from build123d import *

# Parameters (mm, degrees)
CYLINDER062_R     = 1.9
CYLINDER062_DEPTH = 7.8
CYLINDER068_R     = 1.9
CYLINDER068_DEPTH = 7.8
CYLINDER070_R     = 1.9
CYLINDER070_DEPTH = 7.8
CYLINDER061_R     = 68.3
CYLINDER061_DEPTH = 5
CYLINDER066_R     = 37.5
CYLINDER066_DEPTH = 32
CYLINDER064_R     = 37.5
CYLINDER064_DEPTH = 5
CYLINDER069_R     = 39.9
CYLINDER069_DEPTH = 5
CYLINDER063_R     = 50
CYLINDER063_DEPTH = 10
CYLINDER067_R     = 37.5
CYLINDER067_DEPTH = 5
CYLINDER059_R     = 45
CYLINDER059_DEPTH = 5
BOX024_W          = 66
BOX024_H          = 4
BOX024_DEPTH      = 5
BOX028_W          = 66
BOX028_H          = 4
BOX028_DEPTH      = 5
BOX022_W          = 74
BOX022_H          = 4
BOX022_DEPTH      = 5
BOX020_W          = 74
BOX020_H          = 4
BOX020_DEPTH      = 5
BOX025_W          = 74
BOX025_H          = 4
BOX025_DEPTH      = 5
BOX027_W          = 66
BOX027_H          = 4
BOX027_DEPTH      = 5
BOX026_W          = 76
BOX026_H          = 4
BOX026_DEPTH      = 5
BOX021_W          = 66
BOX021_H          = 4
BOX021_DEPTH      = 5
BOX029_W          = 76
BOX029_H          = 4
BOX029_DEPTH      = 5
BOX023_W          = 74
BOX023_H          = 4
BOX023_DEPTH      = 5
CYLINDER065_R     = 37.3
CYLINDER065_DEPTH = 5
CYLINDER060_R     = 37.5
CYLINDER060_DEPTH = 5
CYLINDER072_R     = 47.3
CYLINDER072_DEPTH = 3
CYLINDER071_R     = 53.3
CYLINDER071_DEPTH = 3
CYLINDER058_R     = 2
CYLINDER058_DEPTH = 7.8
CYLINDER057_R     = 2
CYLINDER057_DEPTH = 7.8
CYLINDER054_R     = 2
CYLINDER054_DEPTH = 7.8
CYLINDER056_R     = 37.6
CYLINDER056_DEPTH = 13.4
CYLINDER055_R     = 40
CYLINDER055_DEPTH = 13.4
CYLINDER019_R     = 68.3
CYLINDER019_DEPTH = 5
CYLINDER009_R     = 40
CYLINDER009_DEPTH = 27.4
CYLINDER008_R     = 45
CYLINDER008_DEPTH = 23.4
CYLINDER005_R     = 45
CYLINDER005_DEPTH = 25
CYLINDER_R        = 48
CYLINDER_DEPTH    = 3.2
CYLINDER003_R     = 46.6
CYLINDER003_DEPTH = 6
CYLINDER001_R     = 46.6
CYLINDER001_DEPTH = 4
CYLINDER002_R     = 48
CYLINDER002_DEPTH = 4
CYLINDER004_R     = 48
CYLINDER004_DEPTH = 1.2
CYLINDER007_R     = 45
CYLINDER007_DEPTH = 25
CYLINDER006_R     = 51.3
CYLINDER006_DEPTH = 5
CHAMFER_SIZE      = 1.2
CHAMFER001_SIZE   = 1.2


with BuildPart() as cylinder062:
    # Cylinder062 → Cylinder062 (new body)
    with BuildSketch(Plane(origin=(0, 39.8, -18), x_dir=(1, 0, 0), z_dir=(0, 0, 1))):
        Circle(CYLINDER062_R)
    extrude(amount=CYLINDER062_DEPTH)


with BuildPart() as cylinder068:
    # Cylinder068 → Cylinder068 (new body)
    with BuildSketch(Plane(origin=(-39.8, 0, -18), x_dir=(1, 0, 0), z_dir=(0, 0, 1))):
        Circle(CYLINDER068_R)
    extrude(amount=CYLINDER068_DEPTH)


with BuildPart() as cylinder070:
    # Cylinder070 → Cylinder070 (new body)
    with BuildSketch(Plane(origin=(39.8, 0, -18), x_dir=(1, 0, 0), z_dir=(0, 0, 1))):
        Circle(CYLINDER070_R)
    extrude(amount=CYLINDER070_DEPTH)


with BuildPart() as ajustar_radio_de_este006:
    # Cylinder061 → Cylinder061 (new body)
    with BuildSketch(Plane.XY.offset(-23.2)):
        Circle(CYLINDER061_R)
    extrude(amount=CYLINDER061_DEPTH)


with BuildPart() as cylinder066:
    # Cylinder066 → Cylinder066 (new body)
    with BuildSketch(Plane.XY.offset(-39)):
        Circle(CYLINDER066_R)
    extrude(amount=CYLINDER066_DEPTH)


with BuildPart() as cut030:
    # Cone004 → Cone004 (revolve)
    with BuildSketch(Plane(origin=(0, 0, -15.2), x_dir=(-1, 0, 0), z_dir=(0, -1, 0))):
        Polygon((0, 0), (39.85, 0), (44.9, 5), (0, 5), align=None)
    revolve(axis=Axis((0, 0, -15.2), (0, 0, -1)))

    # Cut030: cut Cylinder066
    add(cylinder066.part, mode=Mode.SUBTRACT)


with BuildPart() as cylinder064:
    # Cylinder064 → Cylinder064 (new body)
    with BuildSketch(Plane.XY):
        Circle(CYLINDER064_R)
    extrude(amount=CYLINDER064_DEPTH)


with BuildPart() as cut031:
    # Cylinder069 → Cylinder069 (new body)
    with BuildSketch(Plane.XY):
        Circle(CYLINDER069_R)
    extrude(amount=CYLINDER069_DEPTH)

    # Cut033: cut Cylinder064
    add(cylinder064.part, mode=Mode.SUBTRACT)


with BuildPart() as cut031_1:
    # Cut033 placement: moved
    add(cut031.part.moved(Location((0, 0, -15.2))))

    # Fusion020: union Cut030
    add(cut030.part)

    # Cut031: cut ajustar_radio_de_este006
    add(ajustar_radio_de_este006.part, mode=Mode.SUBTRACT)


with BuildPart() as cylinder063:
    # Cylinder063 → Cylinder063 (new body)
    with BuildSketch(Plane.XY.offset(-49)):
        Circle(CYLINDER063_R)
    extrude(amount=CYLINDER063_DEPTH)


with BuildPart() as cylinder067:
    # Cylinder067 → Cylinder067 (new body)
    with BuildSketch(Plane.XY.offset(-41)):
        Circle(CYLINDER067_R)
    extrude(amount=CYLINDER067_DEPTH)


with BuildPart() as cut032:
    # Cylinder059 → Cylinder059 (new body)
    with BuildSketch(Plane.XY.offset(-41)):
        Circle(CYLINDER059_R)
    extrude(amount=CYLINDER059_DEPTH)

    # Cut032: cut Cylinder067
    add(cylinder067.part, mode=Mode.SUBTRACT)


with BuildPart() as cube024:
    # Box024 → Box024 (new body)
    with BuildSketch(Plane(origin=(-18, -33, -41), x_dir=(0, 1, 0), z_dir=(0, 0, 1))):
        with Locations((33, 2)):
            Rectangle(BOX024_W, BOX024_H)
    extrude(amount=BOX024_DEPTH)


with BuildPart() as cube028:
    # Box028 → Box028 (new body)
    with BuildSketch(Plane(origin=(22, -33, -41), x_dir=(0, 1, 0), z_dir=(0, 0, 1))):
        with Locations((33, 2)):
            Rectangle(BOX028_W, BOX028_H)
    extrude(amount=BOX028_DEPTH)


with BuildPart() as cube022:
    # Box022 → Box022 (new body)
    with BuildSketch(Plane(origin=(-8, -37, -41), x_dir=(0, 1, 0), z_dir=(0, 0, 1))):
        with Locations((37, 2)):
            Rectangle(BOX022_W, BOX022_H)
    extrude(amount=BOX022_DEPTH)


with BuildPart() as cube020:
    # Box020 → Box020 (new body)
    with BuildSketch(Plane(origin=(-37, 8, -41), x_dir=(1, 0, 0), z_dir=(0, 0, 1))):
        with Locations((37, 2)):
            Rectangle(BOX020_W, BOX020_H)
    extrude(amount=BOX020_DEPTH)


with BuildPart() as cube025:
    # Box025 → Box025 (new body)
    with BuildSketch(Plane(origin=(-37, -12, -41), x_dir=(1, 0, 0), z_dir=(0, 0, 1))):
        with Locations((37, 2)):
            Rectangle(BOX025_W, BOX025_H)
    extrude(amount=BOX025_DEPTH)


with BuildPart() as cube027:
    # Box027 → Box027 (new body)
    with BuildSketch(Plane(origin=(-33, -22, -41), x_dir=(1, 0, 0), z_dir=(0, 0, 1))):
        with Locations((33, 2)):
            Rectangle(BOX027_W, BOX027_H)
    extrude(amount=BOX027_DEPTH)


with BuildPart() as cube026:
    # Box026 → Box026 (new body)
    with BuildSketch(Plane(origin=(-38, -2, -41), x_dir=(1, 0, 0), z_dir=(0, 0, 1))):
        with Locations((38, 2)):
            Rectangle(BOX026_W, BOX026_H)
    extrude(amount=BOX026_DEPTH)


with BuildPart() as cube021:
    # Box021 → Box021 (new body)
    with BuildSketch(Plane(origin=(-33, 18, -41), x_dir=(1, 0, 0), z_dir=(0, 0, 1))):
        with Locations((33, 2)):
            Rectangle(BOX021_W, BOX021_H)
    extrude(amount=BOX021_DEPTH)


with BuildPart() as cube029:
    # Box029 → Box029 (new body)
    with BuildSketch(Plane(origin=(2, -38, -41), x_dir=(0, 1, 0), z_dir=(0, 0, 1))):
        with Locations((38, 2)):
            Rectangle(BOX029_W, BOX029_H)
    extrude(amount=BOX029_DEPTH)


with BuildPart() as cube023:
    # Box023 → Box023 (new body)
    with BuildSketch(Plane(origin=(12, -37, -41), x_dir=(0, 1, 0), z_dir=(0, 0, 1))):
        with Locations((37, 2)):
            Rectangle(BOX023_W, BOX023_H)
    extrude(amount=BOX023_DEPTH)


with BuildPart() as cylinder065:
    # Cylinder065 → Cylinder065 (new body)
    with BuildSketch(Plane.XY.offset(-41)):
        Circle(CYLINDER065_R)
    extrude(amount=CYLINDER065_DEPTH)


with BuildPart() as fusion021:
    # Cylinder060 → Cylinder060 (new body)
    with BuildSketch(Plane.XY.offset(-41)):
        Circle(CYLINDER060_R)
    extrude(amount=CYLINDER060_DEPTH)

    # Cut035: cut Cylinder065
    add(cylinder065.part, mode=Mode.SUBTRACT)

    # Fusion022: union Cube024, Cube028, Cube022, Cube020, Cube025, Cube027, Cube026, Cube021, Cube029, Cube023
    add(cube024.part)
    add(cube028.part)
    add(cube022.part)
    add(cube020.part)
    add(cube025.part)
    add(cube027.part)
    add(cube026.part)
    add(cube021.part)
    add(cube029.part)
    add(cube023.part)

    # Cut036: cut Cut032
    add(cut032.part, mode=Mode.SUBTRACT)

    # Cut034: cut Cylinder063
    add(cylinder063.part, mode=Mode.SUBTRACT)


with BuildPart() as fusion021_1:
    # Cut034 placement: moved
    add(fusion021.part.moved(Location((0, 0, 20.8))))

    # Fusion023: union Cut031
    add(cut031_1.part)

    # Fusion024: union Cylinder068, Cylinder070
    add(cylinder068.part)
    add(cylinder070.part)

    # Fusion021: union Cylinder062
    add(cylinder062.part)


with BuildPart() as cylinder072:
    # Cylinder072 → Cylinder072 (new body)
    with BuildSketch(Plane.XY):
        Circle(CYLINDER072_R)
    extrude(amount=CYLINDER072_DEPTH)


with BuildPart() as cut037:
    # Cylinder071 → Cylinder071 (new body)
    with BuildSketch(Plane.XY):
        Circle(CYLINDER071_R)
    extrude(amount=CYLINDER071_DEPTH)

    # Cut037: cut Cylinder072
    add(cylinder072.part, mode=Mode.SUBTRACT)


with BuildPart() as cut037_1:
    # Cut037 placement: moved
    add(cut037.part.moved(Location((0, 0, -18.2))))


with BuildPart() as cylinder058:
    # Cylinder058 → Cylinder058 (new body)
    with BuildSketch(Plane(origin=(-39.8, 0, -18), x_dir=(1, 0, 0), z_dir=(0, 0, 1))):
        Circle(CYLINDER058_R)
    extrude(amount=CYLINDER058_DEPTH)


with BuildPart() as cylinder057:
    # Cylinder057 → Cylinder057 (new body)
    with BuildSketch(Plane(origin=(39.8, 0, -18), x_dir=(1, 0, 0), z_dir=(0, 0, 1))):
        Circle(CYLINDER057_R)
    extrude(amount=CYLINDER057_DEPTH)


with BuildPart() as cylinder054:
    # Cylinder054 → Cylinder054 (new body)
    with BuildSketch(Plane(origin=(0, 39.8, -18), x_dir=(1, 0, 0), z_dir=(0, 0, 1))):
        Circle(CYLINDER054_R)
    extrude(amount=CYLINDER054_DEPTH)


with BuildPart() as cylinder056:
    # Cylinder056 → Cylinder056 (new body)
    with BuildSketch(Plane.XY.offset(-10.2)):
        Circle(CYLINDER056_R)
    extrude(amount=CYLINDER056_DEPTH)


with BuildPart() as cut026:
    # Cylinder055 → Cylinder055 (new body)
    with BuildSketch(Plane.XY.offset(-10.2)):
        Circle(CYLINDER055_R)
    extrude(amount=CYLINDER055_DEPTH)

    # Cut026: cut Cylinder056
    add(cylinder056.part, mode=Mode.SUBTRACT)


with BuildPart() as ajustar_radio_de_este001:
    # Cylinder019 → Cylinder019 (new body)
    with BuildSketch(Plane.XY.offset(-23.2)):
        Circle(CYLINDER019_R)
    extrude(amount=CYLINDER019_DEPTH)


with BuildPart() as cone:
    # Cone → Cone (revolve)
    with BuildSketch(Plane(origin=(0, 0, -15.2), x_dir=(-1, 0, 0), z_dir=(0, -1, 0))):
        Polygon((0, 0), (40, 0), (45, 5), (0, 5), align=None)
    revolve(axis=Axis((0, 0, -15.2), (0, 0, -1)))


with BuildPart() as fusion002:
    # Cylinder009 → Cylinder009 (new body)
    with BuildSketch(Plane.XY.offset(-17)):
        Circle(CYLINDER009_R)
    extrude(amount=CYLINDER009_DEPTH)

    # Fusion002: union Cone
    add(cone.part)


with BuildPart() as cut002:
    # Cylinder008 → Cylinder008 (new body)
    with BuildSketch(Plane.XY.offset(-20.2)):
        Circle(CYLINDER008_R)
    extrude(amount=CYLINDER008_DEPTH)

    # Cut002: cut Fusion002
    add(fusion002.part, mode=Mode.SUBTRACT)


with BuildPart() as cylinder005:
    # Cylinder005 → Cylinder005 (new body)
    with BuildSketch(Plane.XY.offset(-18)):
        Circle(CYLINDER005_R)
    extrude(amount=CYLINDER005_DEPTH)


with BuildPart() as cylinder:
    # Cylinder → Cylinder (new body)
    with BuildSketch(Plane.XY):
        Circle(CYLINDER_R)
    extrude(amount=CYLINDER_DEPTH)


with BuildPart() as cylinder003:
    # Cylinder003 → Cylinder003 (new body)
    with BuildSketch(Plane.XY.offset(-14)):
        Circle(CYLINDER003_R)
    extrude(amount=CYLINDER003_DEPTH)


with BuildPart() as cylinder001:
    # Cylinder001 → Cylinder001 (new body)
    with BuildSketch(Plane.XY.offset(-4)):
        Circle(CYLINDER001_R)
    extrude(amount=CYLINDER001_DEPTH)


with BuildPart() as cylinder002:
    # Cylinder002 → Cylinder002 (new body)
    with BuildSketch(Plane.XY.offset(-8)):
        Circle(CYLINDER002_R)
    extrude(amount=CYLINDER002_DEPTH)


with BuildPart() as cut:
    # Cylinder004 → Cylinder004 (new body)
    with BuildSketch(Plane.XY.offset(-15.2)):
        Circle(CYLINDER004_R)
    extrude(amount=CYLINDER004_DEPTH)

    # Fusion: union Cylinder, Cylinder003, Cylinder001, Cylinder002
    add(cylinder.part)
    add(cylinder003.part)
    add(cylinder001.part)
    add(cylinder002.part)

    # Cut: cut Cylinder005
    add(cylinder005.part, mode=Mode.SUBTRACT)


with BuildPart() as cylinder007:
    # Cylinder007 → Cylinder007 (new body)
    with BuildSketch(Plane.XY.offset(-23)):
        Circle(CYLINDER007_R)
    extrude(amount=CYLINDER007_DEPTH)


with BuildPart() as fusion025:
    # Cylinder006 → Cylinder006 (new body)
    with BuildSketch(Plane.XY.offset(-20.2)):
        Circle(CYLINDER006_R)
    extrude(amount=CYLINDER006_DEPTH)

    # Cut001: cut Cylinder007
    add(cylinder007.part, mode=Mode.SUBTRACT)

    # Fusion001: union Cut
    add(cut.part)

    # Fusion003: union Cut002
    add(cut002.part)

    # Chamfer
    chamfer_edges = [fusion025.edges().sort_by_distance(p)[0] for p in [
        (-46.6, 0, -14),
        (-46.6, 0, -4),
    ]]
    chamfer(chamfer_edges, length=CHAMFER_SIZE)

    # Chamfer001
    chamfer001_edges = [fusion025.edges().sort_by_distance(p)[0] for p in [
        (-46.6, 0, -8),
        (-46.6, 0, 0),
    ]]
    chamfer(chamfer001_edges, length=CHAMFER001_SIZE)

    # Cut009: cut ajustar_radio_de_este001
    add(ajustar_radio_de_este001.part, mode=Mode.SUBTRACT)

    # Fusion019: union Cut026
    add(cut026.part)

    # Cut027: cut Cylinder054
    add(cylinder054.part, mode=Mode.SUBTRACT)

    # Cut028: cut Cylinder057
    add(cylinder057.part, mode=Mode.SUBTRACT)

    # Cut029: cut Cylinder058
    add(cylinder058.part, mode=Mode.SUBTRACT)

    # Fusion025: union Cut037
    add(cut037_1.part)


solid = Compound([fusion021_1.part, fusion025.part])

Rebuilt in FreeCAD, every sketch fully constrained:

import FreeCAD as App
import Part
import Sketcher

V = App.Vector
Q = App.Units.Quantity


def edges_at(feature, points):
    """Names of the edges that pass closest to the given points."""
    edges = feature.Shape.Edges
    near = lambda p: min(range(len(edges)), key=lambda i: edges[i].distToShape(Part.Vertex(*p))[0])
    return sorted({f"Edge{near(p) + 1}" for p in points})


def add_polygon(sketch, points):
    """Adds a closed chain of lines whose ends are joined by coincident constraints."""
    first, n = sketch.GeometryCount, len(points)
    for a, b in zip(points, points[1:] + points[:1]):
        sketch.addGeometry(Part.LineSegment(App.Vector(*a, 0), App.Vector(*b, 0)), False)
    for i in range(n):
        sketch.addConstraint(Sketcher.Constraint("Coincident", first + i, 2, first + (i + 1) % n, 1))

doc = App.newDocument("Part")
body = doc.addObject("PartDesign::Body", "Body")

# Sketch on XY plane
sketch1 = body.newObject("Sketcher::SketchObject", "Sketch")
sketch1.AttachmentSupport = (doc.getObject("XY_Plane"), [""])
sketch1.MapMode = "FlatFace"
sketch1.AttachmentOffset = App.Placement(V(0, 0, -18), App.Rotation())
sketch1.addGeometry(Part.Circle(V(0, 39.8, 0), V(0, 0, 1), 1.9), False)
sketch1.addConstraint([
    Sketcher.Constraint("PointOnObject", 0, 3, -2),
    Sketcher.Constraint("Diameter", 0, Q("3.8 mm")),
    Sketcher.Constraint("DistanceY", -1, 1, 0, 3, Q("39.8 mm")),
])
pad1 = body.newObject("PartDesign::Pad", "Pad")
pad1.Profile = sketch1
pad1.Length = 7.8
body2 = doc.addObject("PartDesign::Body", "Body001")

# Sketch on XY plane
sketch2 = body2.newObject("Sketcher::SketchObject", "Sketch001")
sketch2.AttachmentSupport = (doc.getObject("XY_Plane001"), [""])
sketch2.MapMode = "FlatFace"
sketch2.AttachmentOffset = App.Placement(V(0, 0, -18), App.Rotation())
sketch2.addGeometry(Part.Circle(V(-39.8, 0, 0), V(0, 0, 1), 1.9), False)
sketch2.addConstraint([
    Sketcher.Constraint("PointOnObject", 0, 3, -1),
    Sketcher.Constraint("Diameter", 0, Q("3.8 mm")),
    Sketcher.Constraint("DistanceX", 0, 3, -1, 1, Q("39.8 mm")),
])
pad2 = body2.newObject("PartDesign::Pad", "Pad001")
pad2.Profile = sketch2
pad2.Length = 7.8
body3 = doc.addObject("PartDesign::Body", "Body002")

# Sketch on XY plane
sketch3 = body3.newObject("Sketcher::SketchObject", "Sketch002")
sketch3.AttachmentSupport = (doc.getObject("XY_Plane002"), [""])
sketch3.MapMode = "FlatFace"
sketch3.AttachmentOffset = App.Placement(V(0, 0, -18), App.Rotation())
sketch3.addGeometry(Part.Circle(V(39.8, 0, 0), V(0, 0, 1), 1.9), False)
sketch3.addConstraint([
    Sketcher.Constraint("PointOnObject", 0, 3, -1),
    Sketcher.Constraint("Diameter", 0, Q("3.8 mm")),
    Sketcher.Constraint("DistanceX", -1, 1, 0, 3, Q("39.8 mm")),
])
pad3 = body3.newObject("PartDesign::Pad", "Pad002")
pad3.Profile = sketch3
pad3.Length = 7.8
body4 = doc.addObject("PartDesign::Body", "Body003")

# Sketch on XY plane
sketch4 = body4.newObject("Sketcher::SketchObject", "Sketch003")
sketch4.AttachmentSupport = (doc.getObject("XY_Plane003"), [""])
sketch4.MapMode = "FlatFace"
sketch4.AttachmentOffset = App.Placement(V(0, 0, -23.2), App.Rotation())
sketch4.addGeometry(Part.Circle(V(0, 0, 0), V(0, 0, 1), 68.3), False)
sketch4.addConstraint([
    Sketcher.Constraint("Coincident", 0, 3, -1, 1),
    Sketcher.Constraint("Diameter", 0, Q("136.6 mm")),
])
pad4 = body4.newObject("PartDesign::Pad", "Pad003")
pad4.Profile = sketch4
pad4.Length = 5
body5 = doc.addObject("PartDesign::Body", "Body004")

# Sketch on XY plane
sketch5 = body5.newObject("Sketcher::SketchObject", "Sketch004")
sketch5.AttachmentSupport = (doc.getObject("XY_Plane004"), [""])
sketch5.MapMode = "FlatFace"
sketch5.AttachmentOffset = App.Placement(V(0, 0, -39), App.Rotation())
sketch5.addGeometry(Part.Circle(V(0, 0, 0), V(0, 0, 1), 37.5), False)
sketch5.addConstraint([
    Sketcher.Constraint("Coincident", 0, 3, -1, 1),
    Sketcher.Constraint("Diameter", 0, Q("75 mm")),
])
pad5 = body5.newObject("PartDesign::Pad", "Pad004")
pad5.Profile = sketch5
pad5.Length = 32
body6 = doc.addObject("PartDesign::Body", "Body005")

# Sketch on XZ plane
sketch6 = body6.newObject("Sketcher::SketchObject", "Sketch005")
sketch6.AttachmentSupport = (doc.getObject("XZ_Plane005"), [""])
sketch6.MapMode = "FlatFace"
add_polygon(sketch6, [(0, -15.2), (-39.85, -15.2), (-44.9, -20.2), (0, -20.2)])  # lines 0-3
sketch6.addConstraint([
    Sketcher.Constraint("Horizontal", 0),
    Sketcher.Constraint("Horizontal", 2),
    Sketcher.Constraint("Vertical", 3),
    Sketcher.Constraint("PointOnObject", 2, 2, -2),
    Sketcher.Constraint("DistanceY", 3, 1, 3, 2, Q("5 mm")),
    Sketcher.Constraint("DistanceX", 2, 1, 2, 2, Q("44.9 mm")),
    Sketcher.Constraint("DistanceX", 0, 2, 0, 1, Q("39.85 mm")),
    Sketcher.Constraint("DistanceY", 0, 2, -1, 1, Q("15.2 mm")),
])
revolution = body6.newObject("PartDesign::Revolution", "Revolution")
revolution.Profile = sketch6
revolution.ReferenceAxis = (sketch6, ["V_Axis"])
revolution.Angle = 360
doc.recompute()

boolean = body6.newObject("PartDesign::Boolean", "Boolean")
boolean.Type = "Cut"
boolean.addObjects([body5])
body7 = doc.addObject("PartDesign::Body", "Body006")

# Sketch on XY plane
sketch7 = body7.newObject("Sketcher::SketchObject", "Sketch006")
sketch7.AttachmentSupport = (doc.getObject("XY_Plane006"), [""])
sketch7.MapMode = "FlatFace"
sketch7.addGeometry(Part.Circle(V(0, 0, 0), V(0, 0, 1), 37.5), False)
sketch7.addConstraint([
    Sketcher.Constraint("Coincident", 0, 3, -1, 1),
    Sketcher.Constraint("Diameter", 0, Q("75 mm")),
])
pad6 = body7.newObject("PartDesign::Pad", "Pad005")
pad6.Profile = sketch7
pad6.Length = 5
body8 = doc.addObject("PartDesign::Body", "Body007")

# Sketch on XY plane
sketch8 = body8.newObject("Sketcher::SketchObject", "Sketch007")
sketch8.AttachmentSupport = (doc.getObject("XY_Plane007"), [""])
sketch8.MapMode = "FlatFace"
sketch8.addGeometry(Part.Circle(V(0, 0, 0), V(0, 0, 1), 39.9), False)
sketch8.addConstraint([
    Sketcher.Constraint("Coincident", 0, 3, -1, 1),
    Sketcher.Constraint("Diameter", 0, Q("79.8 mm")),
])
pad7 = body8.newObject("PartDesign::Pad", "Pad006")
pad7.Profile = sketch8
pad7.Length = 5
doc.recompute()

boolean2 = body8.newObject("PartDesign::Boolean", "Boolean001")
boolean2.Type = "Cut"
boolean2.addObjects([body7])
body9 = doc.addObject("PartDesign::Body", "Body008")
doc.recompute()

body8.Placement = App.Placement(V(0, 0, -15.2), App.Rotation(V(0, 0, 1), 0))
boolean3 = body9.newObject("PartDesign::Boolean", "Boolean002")
boolean3.Type = "Fuse"
boolean3.addObjects([body8])
doc.recompute()

boolean4 = body9.newObject("PartDesign::Boolean", "Boolean003")
boolean4.Type = "Fuse"
boolean4.addObjects([body6])
doc.recompute()

boolean5 = body9.newObject("PartDesign::Boolean", "Boolean004")
boolean5.Type = "Cut"
boolean5.addObjects([body4])
body10 = doc.addObject("PartDesign::Body", "Body009")

# Sketch on XY plane
sketch9 = body10.newObject("Sketcher::SketchObject", "Sketch008")
sketch9.AttachmentSupport = (doc.getObject("XY_Plane009"), [""])
sketch9.MapMode = "FlatFace"
sketch9.AttachmentOffset = App.Placement(V(0, 0, -49), App.Rotation())
sketch9.addGeometry(Part.Circle(V(0, 0, 0), V(0, 0, 1), 50), False)
sketch9.addConstraint([
    Sketcher.Constraint("Coincident", 0, 3, -1, 1),
    Sketcher.Constraint("Diameter", 0, Q("100 mm")),
])
pad8 = body10.newObject("PartDesign::Pad", "Pad007")
pad8.Profile = sketch9
pad8.Length = 10
body11 = doc.addObject("PartDesign::Body", "Body010")

# Sketch on XY plane
sketch10 = body11.newObject("Sketcher::SketchObject", "Sketch009")
sketch10.AttachmentSupport = (doc.getObject("XY_Plane010"), [""])
sketch10.MapMode = "FlatFace"
sketch10.AttachmentOffset = App.Placement(V(0, 0, -41), App.Rotation())
sketch10.addGeometry(Part.Circle(V(0, 0, 0), V(0, 0, 1), 37.5), False)
sketch10.addConstraint([
    Sketcher.Constraint("Coincident", 0, 3, -1, 1),
    Sketcher.Constraint("Diameter", 0, Q("75 mm")),
])
pad9 = body11.newObject("PartDesign::Pad", "Pad008")
pad9.Profile = sketch10
pad9.Length = 5
body12 = doc.addObject("PartDesign::Body", "Body011")

# Sketch on XY plane
sketch11 = body12.newObject("Sketcher::SketchObject", "Sketch010")
sketch11.AttachmentSupport = (doc.getObject("XY_Plane011"), [""])
sketch11.MapMode = "FlatFace"
sketch11.AttachmentOffset = App.Placement(V(0, 0, -41), App.Rotation())
sketch11.addGeometry(Part.Circle(V(0, 0, 0), V(0, 0, 1), 45), False)
sketch11.addConstraint([
    Sketcher.Constraint("Coincident", 0, 3, -1, 1),
    Sketcher.Constraint("Diameter", 0, Q("90 mm")),
])
pad10 = body12.newObject("PartDesign::Pad", "Pad009")
pad10.Profile = sketch11
pad10.Length = 5
doc.recompute()

boolean6 = body12.newObject("PartDesign::Boolean", "Boolean005")
boolean6.Type = "Cut"
boolean6.addObjects([body11])
body13 = doc.addObject("PartDesign::Body", "Body012")

# Sketch on XY plane
sketch12 = body13.newObject("Sketcher::SketchObject", "Sketch011")
sketch12.AttachmentSupport = (doc.getObject("XY_Plane012"), [""])
sketch12.MapMode = "FlatFace"
sketch12.AttachmentOffset = App.Placement(V(0, 0, -41), App.Rotation())
add_polygon(sketch12, [(-22, -33), (-18, -33), (-18, 33), (-22, 33)])  # lines 0-3
sketch12.addConstraint([
    Sketcher.Constraint("Horizontal", 0),
    Sketcher.Constraint("Vertical", 1),
    Sketcher.Constraint("Horizontal", 2),
    Sketcher.Constraint("Vertical", 3),
    Sketcher.Constraint("DistanceX", 0, 1, 0, 2, Q("4 mm")),
    Sketcher.Constraint("DistanceY", 1, 1, 1, 2, Q("66 mm")),
    Sketcher.Constraint("DistanceX", 0, 2, -1, 1, Q("18 mm")),
    Sketcher.Constraint("DistanceY", 0, 2, -1, 1, Q("33 mm")),
])
pad11 = body13.newObject("PartDesign::Pad", "Pad010")
pad11.Profile = sketch12
pad11.Length = 5
body14 = doc.addObject("PartDesign::Body", "Body013")

# Sketch on XY plane
sketch13 = body14.newObject("Sketcher::SketchObject", "Sketch012")
sketch13.AttachmentSupport = (doc.getObject("XY_Plane013"), [""])
sketch13.MapMode = "FlatFace"
sketch13.AttachmentOffset = App.Placement(V(0, 0, -41), App.Rotation())
add_polygon(sketch13, [(18, -33), (22, -33), (22, 33), (18, 33)])  # lines 0-3
sketch13.addConstraint([
    Sketcher.Constraint("Horizontal", 0),
    Sketcher.Constraint("Vertical", 1),
    Sketcher.Constraint("Horizontal", 2),
    Sketcher.Constraint("Vertical", 3),
    Sketcher.Constraint("DistanceX", 0, 1, 0, 2, Q("4 mm")),
    Sketcher.Constraint("DistanceY", 1, 1, 1, 2, Q("66 mm")),
    Sketcher.Constraint("DistanceX", -1, 1, 0, 2, Q("22 mm")),
    Sketcher.Constraint("DistanceY", 0, 2, -1, 1, Q("33 mm")),
])
pad12 = body14.newObject("PartDesign::Pad", "Pad011")
pad12.Profile = sketch13
pad12.Length = 5
body15 = doc.addObject("PartDesign::Body", "Body014")

# Sketch on XY plane
sketch14 = body15.newObject("Sketcher::SketchObject", "Sketch013")
sketch14.AttachmentSupport = (doc.getObject("XY_Plane014"), [""])
sketch14.MapMode = "FlatFace"
sketch14.AttachmentOffset = App.Placement(V(0, 0, -41), App.Rotation())
add_polygon(sketch14, [(-12, -37), (-8, -37), (-8, 37), (-12, 37)])  # lines 0-3
sketch14.addConstraint([
    Sketcher.Constraint("Horizontal", 0),
    Sketcher.Constraint("Vertical", 1),
    Sketcher.Constraint("Horizontal", 2),
    Sketcher.Constraint("Vertical", 3),
    Sketcher.Constraint("DistanceX", 0, 1, 0, 2, Q("4 mm")),
    Sketcher.Constraint("DistanceY", 1, 1, 1, 2, Q("74 mm")),
    Sketcher.Constraint("DistanceX", 0, 2, -1, 1, Q("8 mm")),
    Sketcher.Constraint("DistanceY", 0, 2, -1, 1, Q("37 mm")),
])
pad13 = body15.newObject("PartDesign::Pad", "Pad012")
pad13.Profile = sketch14
pad13.Length = 5
body16 = doc.addObject("PartDesign::Body", "Body015")

# Sketch on XY plane
sketch15 = body16.newObject("Sketcher::SketchObject", "Sketch014")
sketch15.AttachmentSupport = (doc.getObject("XY_Plane015"), [""])
sketch15.MapMode = "FlatFace"
sketch15.AttachmentOffset = App.Placement(V(0, 0, -41), App.Rotation())
add_polygon(sketch15, [(-37, 12), (-37, 8), (37, 8), (37, 12)])  # lines 0-3
sketch15.addConstraint([
    Sketcher.Constraint("Vertical", 0),
    Sketcher.Constraint("Horizontal", 1),
    Sketcher.Constraint("Vertical", 2),
    Sketcher.Constraint("Horizontal", 3),
    Sketcher.Constraint("DistanceX", 1, 1, 1, 2, Q("74 mm")),
    Sketcher.Constraint("DistanceY", 0, 2, 0, 1, Q("4 mm")),
    Sketcher.Constraint("DistanceX", 0, 2, -1, 1, Q("37 mm")),
    Sketcher.Constraint("DistanceY", -1, 1, 0, 2, Q("8 mm")),
])
pad14 = body16.newObject("PartDesign::Pad", "Pad013")
pad14.Profile = sketch15
pad14.Length = 5
body17 = doc.addObject("PartDesign::Body", "Body016")

# Sketch on XY plane
sketch16 = body17.newObject("Sketcher::SketchObject", "Sketch015")
sketch16.AttachmentSupport = (doc.getObject("XY_Plane016"), [""])
sketch16.MapMode = "FlatFace"
sketch16.AttachmentOffset = App.Placement(V(0, 0, -41), App.Rotation())
add_polygon(sketch16, [(-37, -8), (-37, -12), (37, -12), (37, -8)])  # lines 0-3
sketch16.addConstraint([
    Sketcher.Constraint("Vertical", 0),
    Sketcher.Constraint("Horizontal", 1),
    Sketcher.Constraint("Vertical", 2),
    Sketcher.Constraint("Horizontal", 3),
    Sketcher.Constraint("DistanceX", 1, 1, 1, 2, Q("74 mm")),
    Sketcher.Constraint("DistanceY", 0, 2, 0, 1, Q("4 mm")),
    Sketcher.Constraint("DistanceX", 0, 2, -1, 1, Q("37 mm")),
    Sketcher.Constraint("DistanceY", 0, 2, -1, 1, Q("12 mm")),
])
pad15 = body17.newObject("PartDesign::Pad", "Pad014")
pad15.Profile = sketch16
pad15.Length = 5
body18 = doc.addObject("PartDesign::Body", "Body017")

# Sketch on XY plane
sketch17 = body18.newObject("Sketcher::SketchObject", "Sketch016")
sketch17.AttachmentSupport = (doc.getObject("XY_Plane017"), [""])
sketch17.MapMode = "FlatFace"
sketch17.AttachmentOffset = App.Placement(V(0, 0, -41), App.Rotation())
add_polygon(sketch17, [(-33, -18), (-33, -22), (33, -22), (33, -18)])  # lines 0-3
sketch17.addConstraint([
    Sketcher.Constraint("Vertical", 0),
    Sketcher.Constraint("Horizontal", 1),
    Sketcher.Constraint("Vertical", 2),
    Sketcher.Constraint("Horizontal", 3),
    Sketcher.Constraint("DistanceX", 1, 1, 1, 2, Q("66 mm")),
    Sketcher.Constraint("DistanceY", 0, 2, 0, 1, Q("4 mm")),
    Sketcher.Constraint("DistanceX", 0, 2, -1, 1, Q("33 mm")),
    Sketcher.Constraint("DistanceY", 0, 2, -1, 1, Q("22 mm")),
])
pad16 = body18.newObject("PartDesign::Pad", "Pad015")
pad16.Profile = sketch17
pad16.Length = 5
body19 = doc.addObject("PartDesign::Body", "Body018")

# Sketch on XY plane
sketch18 = body19.newObject("Sketcher::SketchObject", "Sketch017")
sketch18.AttachmentSupport = (doc.getObject("XY_Plane018"), [""])
sketch18.MapMode = "FlatFace"
sketch18.AttachmentOffset = App.Placement(V(0, 0, -41), App.Rotation())
add_polygon(sketch18, [(-38, 2), (-38, -2), (38, -2), (38, 2)])  # lines 0-3
sketch18.addConstraint([
    Sketcher.Constraint("Vertical", 0),
    Sketcher.Constraint("Horizontal", 1),
    Sketcher.Constraint("Vertical", 2),
    Sketcher.Constraint("Horizontal", 3),
    Sketcher.Constraint("Symmetric", 0, 2, 2, 2, -1, 1),
    Sketcher.Constraint("DistanceX", 1, 1, 1, 2, Q("76 mm")),
    Sketcher.Constraint("DistanceY", 0, 2, 0, 1, Q("4 mm")),
])
pad17 = body19.newObject("PartDesign::Pad", "Pad016")
pad17.Profile = sketch18
pad17.Length = 5
body20 = doc.addObject("PartDesign::Body", "Body019")

# Sketch on XY plane
sketch19 = body20.newObject("Sketcher::SketchObject", "Sketch018")
sketch19.AttachmentSupport = (doc.getObject("XY_Plane019"), [""])
sketch19.MapMode = "FlatFace"
sketch19.AttachmentOffset = App.Placement(V(0, 0, -41), App.Rotation())
add_polygon(sketch19, [(-33, 22), (-33, 18), (33, 18), (33, 22)])  # lines 0-3
sketch19.addConstraint([
    Sketcher.Constraint("Vertical", 0),
    Sketcher.Constraint("Horizontal", 1),
    Sketcher.Constraint("Vertical", 2),
    Sketcher.Constraint("Horizontal", 3),
    Sketcher.Constraint("DistanceX", 1, 1, 1, 2, Q("66 mm")),
    Sketcher.Constraint("DistanceY", 0, 2, 0, 1, Q("4 mm")),
    Sketcher.Constraint("DistanceX", 0, 2, -1, 1, Q("33 mm")),
    Sketcher.Constraint("DistanceY", -1, 1, 0, 2, Q("18 mm")),
])
pad18 = body20.newObject("PartDesign::Pad", "Pad017")
pad18.Profile = sketch19
pad18.Length = 5
body21 = doc.addObject("PartDesign::Body", "Body020")

# Sketch on XY plane
sketch20 = body21.newObject("Sketcher::SketchObject", "Sketch019")
sketch20.AttachmentSupport = (doc.getObject("XY_Plane020"), [""])
sketch20.MapMode = "FlatFace"
sketch20.AttachmentOffset = App.Placement(V(0, 0, -41), App.Rotation())
add_polygon(sketch20, [(-2, -38), (2, -38), (2, 38), (-2, 38)])  # lines 0-3
sketch20.addConstraint([
    Sketcher.Constraint("Horizontal", 0),
    Sketcher.Constraint("Vertical", 1),
    Sketcher.Constraint("Horizontal", 2),
    Sketcher.Constraint("Vertical", 3),
    Sketcher.Constraint("Symmetric", 0, 2, 2, 2, -1, 1),
    Sketcher.Constraint("DistanceX", 0, 1, 0, 2, Q("4 mm")),
    Sketcher.Constraint("DistanceY", 1, 1, 1, 2, Q("76 mm")),
])
pad19 = body21.newObject("PartDesign::Pad", "Pad018")
pad19.Profile = sketch20
pad19.Length = 5
body22 = doc.addObject("PartDesign::Body", "Body021")

# Sketch on XY plane
sketch21 = body22.newObject("Sketcher::SketchObject", "Sketch020")
sketch21.AttachmentSupport = (doc.getObject("XY_Plane021"), [""])
sketch21.MapMode = "FlatFace"
sketch21.AttachmentOffset = App.Placement(V(0, 0, -41), App.Rotation())
add_polygon(sketch21, [(8, -37), (12, -37), (12, 37), (8, 37)])  # lines 0-3
sketch21.addConstraint([
    Sketcher.Constraint("Horizontal", 0),
    Sketcher.Constraint("Vertical", 1),
    Sketcher.Constraint("Horizontal", 2),
    Sketcher.Constraint("Vertical", 3),
    Sketcher.Constraint("DistanceX", 0, 1, 0, 2, Q("4 mm")),
    Sketcher.Constraint("DistanceY", 1, 1, 1, 2, Q("74 mm")),
    Sketcher.Constraint("DistanceX", -1, 1, 0, 2, Q("12 mm")),
    Sketcher.Constraint("DistanceY", 0, 2, -1, 1, Q("37 mm")),
])
pad20 = body22.newObject("PartDesign::Pad", "Pad019")
pad20.Profile = sketch21
pad20.Length = 5
body23 = doc.addObject("PartDesign::Body", "Body022")

# Sketch on XY plane
sketch22 = body23.newObject("Sketcher::SketchObject", "Sketch021")
sketch22.AttachmentSupport = (doc.getObject("XY_Plane022"), [""])
sketch22.MapMode = "FlatFace"
sketch22.AttachmentOffset = App.Placement(V(0, 0, -41), App.Rotation())
sketch22.addGeometry(Part.Circle(V(0, 0, 0), V(0, 0, 1), 37.3), False)
sketch22.addConstraint([
    Sketcher.Constraint("Coincident", 0, 3, -1, 1),
    Sketcher.Constraint("Diameter", 0, Q("74.6 mm")),
])
pad21 = body23.newObject("PartDesign::Pad", "Pad020")
pad21.Profile = sketch22
pad21.Length = 5
body24 = doc.addObject("PartDesign::Body", "Body023")

# Sketch on XY plane
sketch23 = body24.newObject("Sketcher::SketchObject", "Sketch022")
sketch23.AttachmentSupport = (doc.getObject("XY_Plane023"), [""])
sketch23.MapMode = "FlatFace"
sketch23.AttachmentOffset = App.Placement(V(0, 0, -41), App.Rotation())
sketch23.addGeometry(Part.Circle(V(0, 0, 0), V(0, 0, 1), 37.5), False)
sketch23.addConstraint([
    Sketcher.Constraint("Coincident", 0, 3, -1, 1),
    Sketcher.Constraint("Diameter", 0, Q("75 mm")),
])
pad22 = body24.newObject("PartDesign::Pad", "Pad021")
pad22.Profile = sketch23
pad22.Length = 5
doc.recompute()

boolean7 = body24.newObject("PartDesign::Boolean", "Boolean006")
boolean7.Type = "Cut"
boolean7.addObjects([body23])
doc.recompute()

boolean8 = body24.newObject("PartDesign::Boolean", "Boolean007")
boolean8.Type = "Fuse"
boolean8.addObjects([body13])
doc.recompute()

boolean9 = body24.newObject("PartDesign::Boolean", "Boolean008")
boolean9.Type = "Fuse"
boolean9.addObjects([body14])
doc.recompute()

boolean10 = body24.newObject("PartDesign::Boolean", "Boolean009")
boolean10.Type = "Fuse"
boolean10.addObjects([body15])
doc.recompute()

boolean11 = body24.newObject("PartDesign::Boolean", "Boolean010")
boolean11.Type = "Fuse"
boolean11.addObjects([body16])
doc.recompute()

boolean12 = body24.newObject("PartDesign::Boolean", "Boolean011")
boolean12.Type = "Fuse"
boolean12.addObjects([body17])
doc.recompute()

boolean13 = body24.newObject("PartDesign::Boolean", "Boolean012")
boolean13.Type = "Fuse"
boolean13.addObjects([body18])
doc.recompute()

boolean14 = body24.newObject("PartDesign::Boolean", "Boolean013")
boolean14.Type = "Fuse"
boolean14.addObjects([body19])
doc.recompute()

boolean15 = body24.newObject("PartDesign::Boolean", "Boolean014")
boolean15.Type = "Fuse"
boolean15.addObjects([body20])
doc.recompute()

boolean16 = body24.newObject("PartDesign::Boolean", "Boolean015")
boolean16.Type = "Fuse"
boolean16.addObjects([body21])
doc.recompute()

boolean17 = body24.newObject("PartDesign::Boolean", "Boolean016")
boolean17.Type = "Fuse"
boolean17.addObjects([body22])
doc.recompute()

boolean18 = body24.newObject("PartDesign::Boolean", "Boolean017")
boolean18.Type = "Cut"
boolean18.addObjects([body12])
doc.recompute()

boolean19 = body24.newObject("PartDesign::Boolean", "Boolean018")
boolean19.Type = "Cut"
boolean19.addObjects([body10])
body25 = doc.addObject("PartDesign::Body", "Body024")
doc.recompute()

body24.Placement = App.Placement(V(0, 0, 20.8), App.Rotation(V(0, 0, 1), 0))
boolean20 = body25.newObject("PartDesign::Boolean", "Boolean019")
boolean20.Type = "Fuse"
boolean20.addObjects([body24])
doc.recompute()

boolean21 = body25.newObject("PartDesign::Boolean", "Boolean020")
boolean21.Type = "Fuse"
boolean21.addObjects([body9])
doc.recompute()

boolean22 = body25.newObject("PartDesign::Boolean", "Boolean021")
boolean22.Type = "Fuse"
boolean22.addObjects([body2])
doc.recompute()

boolean23 = body25.newObject("PartDesign::Boolean", "Boolean022")
boolean23.Type = "Fuse"
boolean23.addObjects([body3])
doc.recompute()

boolean24 = body25.newObject("PartDesign::Boolean", "Boolean023")
boolean24.Type = "Fuse"
boolean24.addObjects([body])
body26 = doc.addObject("PartDesign::Body", "Body025")

# Sketch on XY plane
sketch24 = body26.newObject("Sketcher::SketchObject", "Sketch023")
sketch24.AttachmentSupport = (doc.getObject("XY_Plane025"), [""])
sketch24.MapMode = "FlatFace"
sketch24.addGeometry(Part.Circle(V(0, 0, 0), V(0, 0, 1), 47.3), False)
sketch24.addConstraint([
    Sketcher.Constraint("Coincident", 0, 3, -1, 1),
    Sketcher.Constraint("Diameter", 0, Q("94.6 mm")),
])
pad23 = body26.newObject("PartDesign::Pad", "Pad022")
pad23.Profile = sketch24
pad23.Length = 3
body27 = doc.addObject("PartDesign::Body", "Body026")

# Sketch on XY plane
sketch25 = body27.newObject("Sketcher::SketchObject", "Sketch024")
sketch25.AttachmentSupport = (doc.getObject("XY_Plane026"), [""])
sketch25.MapMode = "FlatFace"
sketch25.addGeometry(Part.Circle(V(0, 0, 0), V(0, 0, 1), 53.3), False)
sketch25.addConstraint([
    Sketcher.Constraint("Coincident", 0, 3, -1, 1),
    Sketcher.Constraint("Diameter", 0, Q("106.6 mm")),
])
pad24 = body27.newObject("PartDesign::Pad", "Pad023")
pad24.Profile = sketch25
pad24.Length = 3
doc.recompute()

boolean25 = body27.newObject("PartDesign::Boolean", "Boolean024")
boolean25.Type = "Cut"
boolean25.addObjects([body26])
body28 = doc.addObject("PartDesign::Body", "Body027")
doc.recompute()

body27.Placement = App.Placement(V(0, 0, -18.2), App.Rotation(V(0, 0, 1), 0))
boolean26 = body28.newObject("PartDesign::Boolean", "Boolean025")
boolean26.Type = "Fuse"
boolean26.addObjects([body27])
body29 = doc.addObject("PartDesign::Body", "Body028")

# Sketch on XY plane
sketch26 = body29.newObject("Sketcher::SketchObject", "Sketch025")
sketch26.AttachmentSupport = (doc.getObject("XY_Plane028"), [""])
sketch26.MapMode = "FlatFace"
sketch26.AttachmentOffset = App.Placement(V(0, 0, -18), App.Rotation())
sketch26.addGeometry(Part.Circle(V(-39.8, 0, 0), V(0, 0, 1), 2), False)
sketch26.addConstraint([
    Sketcher.Constraint("PointOnObject", 0, 3, -1),
    Sketcher.Constraint("Diameter", 0, Q("4 mm")),
    Sketcher.Constraint("DistanceX", 0, 3, -1, 1, Q("39.8 mm")),
])
pad25 = body29.newObject("PartDesign::Pad", "Pad024")
pad25.Profile = sketch26
pad25.Length = 7.8
body30 = doc.addObject("PartDesign::Body", "Body029")

# Sketch on XY plane
sketch27 = body30.newObject("Sketcher::SketchObject", "Sketch026")
sketch27.AttachmentSupport = (doc.getObject("XY_Plane029"), [""])
sketch27.MapMode = "FlatFace"
sketch27.AttachmentOffset = App.Placement(V(0, 0, -18), App.Rotation())
sketch27.addGeometry(Part.Circle(V(39.8, 0, 0), V(0, 0, 1), 2), False)
sketch27.addConstraint([
    Sketcher.Constraint("PointOnObject", 0, 3, -1),
    Sketcher.Constraint("Diameter", 0, Q("4 mm")),
    Sketcher.Constraint("DistanceX", -1, 1, 0, 3, Q("39.8 mm")),
])
pad26 = body30.newObject("PartDesign::Pad", "Pad025")
pad26.Profile = sketch27
pad26.Length = 7.8
body31 = doc.addObject("PartDesign::Body", "Body030")

# Sketch on XY plane
sketch28 = body31.newObject("Sketcher::SketchObject", "Sketch027")
sketch28.AttachmentSupport = (doc.getObject("XY_Plane030"), [""])
sketch28.MapMode = "FlatFace"
sketch28.AttachmentOffset = App.Placement(V(0, 0, -18), App.Rotation())
sketch28.addGeometry(Part.Circle(V(0, 39.8, 0), V(0, 0, 1), 2), False)
sketch28.addConstraint([
    Sketcher.Constraint("PointOnObject", 0, 3, -2),
    Sketcher.Constraint("Diameter", 0, Q("4 mm")),
    Sketcher.Constraint("DistanceY", -1, 1, 0, 3, Q("39.8 mm")),
])
pad27 = body31.newObject("PartDesign::Pad", "Pad026")
pad27.Profile = sketch28
pad27.Length = 7.8
body32 = doc.addObject("PartDesign::Body", "Body031")

# Sketch on XY plane
sketch29 = body32.newObject("Sketcher::SketchObject", "Sketch028")
sketch29.AttachmentSupport = (doc.getObject("XY_Plane031"), [""])
sketch29.MapMode = "FlatFace"
sketch29.AttachmentOffset = App.Placement(V(0, 0, -10.2), App.Rotation())
sketch29.addGeometry(Part.Circle(V(0, 0, 0), V(0, 0, 1), 37.6), False)
sketch29.addConstraint([
    Sketcher.Constraint("Coincident", 0, 3, -1, 1),
    Sketcher.Constraint("Diameter", 0, Q("75.2 mm")),
])
pad28 = body32.newObject("PartDesign::Pad", "Pad027")
pad28.Profile = sketch29
pad28.Length = 13.4
body33 = doc.addObject("PartDesign::Body", "Body032")

# Sketch on XY plane
sketch30 = body33.newObject("Sketcher::SketchObject", "Sketch029")
sketch30.AttachmentSupport = (doc.getObject("XY_Plane032"), [""])
sketch30.MapMode = "FlatFace"
sketch30.AttachmentOffset = App.Placement(V(0, 0, -10.2), App.Rotation())
sketch30.addGeometry(Part.Circle(V(0, 0, 0), V(0, 0, 1), 40), False)
sketch30.addConstraint([
    Sketcher.Constraint("Coincident", 0, 3, -1, 1),
    Sketcher.Constraint("Diameter", 0, Q("80 mm")),
])
pad29 = body33.newObject("PartDesign::Pad", "Pad028")
pad29.Profile = sketch30
pad29.Length = 13.4
doc.recompute()

boolean27 = body33.newObject("PartDesign::Boolean", "Boolean026")
boolean27.Type = "Cut"
boolean27.addObjects([body32])
body34 = doc.addObject("PartDesign::Body", "Body033")

# Sketch on XY plane
sketch31 = body34.newObject("Sketcher::SketchObject", "Sketch030")
sketch31.AttachmentSupport = (doc.getObject("XY_Plane033"), [""])
sketch31.MapMode = "FlatFace"
sketch31.AttachmentOffset = App.Placement(V(0, 0, -23.2), App.Rotation())
sketch31.addGeometry(Part.Circle(V(0, 0, 0), V(0, 0, 1), 68.3), False)
sketch31.addConstraint([
    Sketcher.Constraint("Coincident", 0, 3, -1, 1),
    Sketcher.Constraint("Diameter", 0, Q("136.6 mm")),
])
pad30 = body34.newObject("PartDesign::Pad", "Pad029")
pad30.Profile = sketch31
pad30.Length = 5
body35 = doc.addObject("PartDesign::Body", "Body034")

# Sketch on XZ plane
sketch32 = body35.newObject("Sketcher::SketchObject", "Sketch031")
sketch32.AttachmentSupport = (doc.getObject("XZ_Plane034"), [""])
sketch32.MapMode = "FlatFace"
add_polygon(sketch32, [(0, -15.2), (-40, -15.2), (-45, -20.2), (0, -20.2)])  # lines 0-3
sketch32.addConstraint([
    Sketcher.Constraint("Horizontal", 0),
    Sketcher.Constraint("Horizontal", 2),
    Sketcher.Constraint("Vertical", 3),
    Sketcher.Constraint("PointOnObject", 2, 2, -2),
    Sketcher.Constraint("DistanceX", 0, 2, 0, 1, Q("40 mm")),
    Sketcher.Constraint("DistanceX", 2, 1, 2, 2, Q("45 mm")),
    Sketcher.Constraint("DistanceY", 3, 1, 3, 2, Q("5 mm")),
    Sketcher.Constraint("DistanceY", 0, 2, -1, 1, Q("15.2 mm")),
])
revolution2 = body35.newObject("PartDesign::Revolution", "Revolution001")
revolution2.Profile = sketch32
revolution2.ReferenceAxis = (sketch32, ["V_Axis"])
revolution2.Angle = 360
body36 = doc.addObject("PartDesign::Body", "Body035")

# Sketch on XY plane
sketch33 = body36.newObject("Sketcher::SketchObject", "Sketch032")
sketch33.AttachmentSupport = (doc.getObject("XY_Plane035"), [""])
sketch33.MapMode = "FlatFace"
sketch33.AttachmentOffset = App.Placement(V(0, 0, -17), App.Rotation())
sketch33.addGeometry(Part.Circle(V(0, 0, 0), V(0, 0, 1), 40), False)
sketch33.addConstraint([
    Sketcher.Constraint("Coincident", 0, 3, -1, 1),
    Sketcher.Constraint("Diameter", 0, Q("80 mm")),
])
pad31 = body36.newObject("PartDesign::Pad", "Pad030")
pad31.Profile = sketch33
pad31.Length = 27.4
doc.recompute()

boolean28 = body36.newObject("PartDesign::Boolean", "Boolean027")
boolean28.Type = "Fuse"
boolean28.addObjects([body35])
body37 = doc.addObject("PartDesign::Body", "Body036")

# Sketch on XY plane
sketch34 = body37.newObject("Sketcher::SketchObject", "Sketch033")
sketch34.AttachmentSupport = (doc.getObject("XY_Plane036"), [""])
sketch34.MapMode = "FlatFace"
sketch34.AttachmentOffset = App.Placement(V(0, 0, -20.2), App.Rotation())
sketch34.addGeometry(Part.Circle(V(0, 0, 0), V(0, 0, 1), 45), False)
sketch34.addConstraint([
    Sketcher.Constraint("Coincident", 0, 3, -1, 1),
    Sketcher.Constraint("Diameter", 0, Q("90 mm")),
])
pad32 = body37.newObject("PartDesign::Pad", "Pad031")
pad32.Profile = sketch34
pad32.Length = 23.4
doc.recompute()

boolean29 = body37.newObject("PartDesign::Boolean", "Boolean028")
boolean29.Type = "Cut"
boolean29.addObjects([body36])
body38 = doc.addObject("PartDesign::Body", "Body037")

# Sketch on XY plane
sketch35 = body38.newObject("Sketcher::SketchObject", "Sketch034")
sketch35.AttachmentSupport = (doc.getObject("XY_Plane037"), [""])
sketch35.MapMode = "FlatFace"
sketch35.AttachmentOffset = App.Placement(V(0, 0, -18), App.Rotation())
sketch35.addGeometry(Part.Circle(V(0, 0, 0), V(0, 0, 1), 45), False)
sketch35.addConstraint([
    Sketcher.Constraint("Coincident", 0, 3, -1, 1),
    Sketcher.Constraint("Diameter", 0, Q("90 mm")),
])
pad33 = body38.newObject("PartDesign::Pad", "Pad032")
pad33.Profile = sketch35
pad33.Length = 25
body39 = doc.addObject("PartDesign::Body", "Body038")

# Sketch on XY plane
sketch36 = body39.newObject("Sketcher::SketchObject", "Sketch035")
sketch36.AttachmentSupport = (doc.getObject("XY_Plane038"), [""])
sketch36.MapMode = "FlatFace"
sketch36.addGeometry(Part.Circle(V(0, 0, 0), V(0, 0, 1), 48), False)
sketch36.addConstraint([
    Sketcher.Constraint("Coincident", 0, 3, -1, 1),
    Sketcher.Constraint("Diameter", 0, Q("96 mm")),
])
pad34 = body39.newObject("PartDesign::Pad", "Pad033")
pad34.Profile = sketch36
pad34.Length = 3.2
body40 = doc.addObject("PartDesign::Body", "Body039")

# Sketch on XY plane
sketch37 = body40.newObject("Sketcher::SketchObject", "Sketch036")
sketch37.AttachmentSupport = (doc.getObject("XY_Plane039"), [""])
sketch37.MapMode = "FlatFace"
sketch37.AttachmentOffset = App.Placement(V(0, 0, -14), App.Rotation())
sketch37.addGeometry(Part.Circle(V(0, 0, 0), V(0, 0, 1), 46.6), False)
sketch37.addConstraint([
    Sketcher.Constraint("Coincident", 0, 3, -1, 1),
    Sketcher.Constraint("Diameter", 0, Q("93.2 mm")),
])
pad35 = body40.newObject("PartDesign::Pad", "Pad034")
pad35.Profile = sketch37
pad35.Length = 6
body41 = doc.addObject("PartDesign::Body", "Body040")

# Sketch on XY plane
sketch38 = body41.newObject("Sketcher::SketchObject", "Sketch037")
sketch38.AttachmentSupport = (doc.getObject("XY_Plane040"), [""])
sketch38.MapMode = "FlatFace"
sketch38.AttachmentOffset = App.Placement(V(0, 0, -4), App.Rotation())
sketch38.addGeometry(Part.Circle(V(0, 0, 0), V(0, 0, 1), 46.6), False)
sketch38.addConstraint([
    Sketcher.Constraint("Coincident", 0, 3, -1, 1),
    Sketcher.Constraint("Diameter", 0, Q("93.2 mm")),
])
pad36 = body41.newObject("PartDesign::Pad", "Pad035")
pad36.Profile = sketch38
pad36.Length = 4
body42 = doc.addObject("PartDesign::Body", "Body041")

# Sketch on XY plane
sketch39 = body42.newObject("Sketcher::SketchObject", "Sketch038")
sketch39.AttachmentSupport = (doc.getObject("XY_Plane041"), [""])
sketch39.MapMode = "FlatFace"
sketch39.AttachmentOffset = App.Placement(V(0, 0, -8), App.Rotation())
sketch39.addGeometry(Part.Circle(V(0, 0, 0), V(0, 0, 1), 48), False)
sketch39.addConstraint([
    Sketcher.Constraint("Coincident", 0, 3, -1, 1),
    Sketcher.Constraint("Diameter", 0, Q("96 mm")),
])
pad37 = body42.newObject("PartDesign::Pad", "Pad036")
pad37.Profile = sketch39
pad37.Length = 4
body43 = doc.addObject("PartDesign::Body", "Body042")
body43.AllowCompound = True

# Sketch on XY plane
sketch40 = body43.newObject("Sketcher::SketchObject", "Sketch039")
sketch40.AttachmentSupport = (doc.getObject("XY_Plane042"), [""])
sketch40.MapMode = "FlatFace"
sketch40.AttachmentOffset = App.Placement(V(0, 0, -15.2), App.Rotation())
sketch40.addGeometry(Part.Circle(V(0, 0, 0), V(0, 0, 1), 48), False)
sketch40.addConstraint([
    Sketcher.Constraint("Coincident", 0, 3, -1, 1),
    Sketcher.Constraint("Diameter", 0, Q("96 mm")),
])
pad38 = body43.newObject("PartDesign::Pad", "Pad037")
pad38.Profile = sketch40
pad38.Length = 1.2
doc.recompute()

boolean30 = body43.newObject("PartDesign::Boolean", "Boolean029")
boolean30.Type = "Fuse"
boolean30.addObjects([body39])
doc.recompute()

boolean31 = body43.newObject("PartDesign::Boolean", "Boolean030")
boolean31.Type = "Fuse"
boolean31.addObjects([body40])
doc.recompute()

boolean32 = body43.newObject("PartDesign::Boolean", "Boolean031")
boolean32.Type = "Fuse"
boolean32.addObjects([body41])
doc.recompute()

boolean33 = body43.newObject("PartDesign::Boolean", "Boolean032")
boolean33.Type = "Fuse"
boolean33.addObjects([body42])
doc.recompute()

boolean34 = body43.newObject("PartDesign::Boolean", "Boolean033")
boolean34.Type = "Cut"
boolean34.addObjects([body38])
body44 = doc.addObject("PartDesign::Body", "Body043")

# Sketch on XY plane
sketch41 = body44.newObject("Sketcher::SketchObject", "Sketch040")
sketch41.AttachmentSupport = (doc.getObject("XY_Plane043"), [""])
sketch41.MapMode = "FlatFace"
sketch41.AttachmentOffset = App.Placement(V(0, 0, -23), App.Rotation())
sketch41.addGeometry(Part.Circle(V(0, 0, 0), V(0, 0, 1), 45), False)
sketch41.addConstraint([
    Sketcher.Constraint("Coincident", 0, 3, -1, 1),
    Sketcher.Constraint("Diameter", 0, Q("90 mm")),
])
pad39 = body44.newObject("PartDesign::Pad", "Pad038")
pad39.Profile = sketch41
pad39.Length = 25
body45 = doc.addObject("PartDesign::Body", "Body044")

# Sketch on XY plane
sketch42 = body45.newObject("Sketcher::SketchObject", "Sketch041")
sketch42.AttachmentSupport = (doc.getObject("XY_Plane044"), [""])
sketch42.MapMode = "FlatFace"
sketch42.AttachmentOffset = App.Placement(V(0, 0, -20.2), App.Rotation())
sketch42.addGeometry(Part.Circle(V(0, 0, 0), V(0, 0, 1), 51.3), False)
sketch42.addConstraint([
    Sketcher.Constraint("Coincident", 0, 3, -1, 1),
    Sketcher.Constraint("Diameter", 0, Q("102.6 mm")),
])
pad40 = body45.newObject("PartDesign::Pad", "Pad039")
pad40.Profile = sketch42
pad40.Length = 5
doc.recompute()

boolean35 = body45.newObject("PartDesign::Boolean", "Boolean034")
boolean35.Type = "Cut"
boolean35.addObjects([body44])
doc.recompute()

boolean36 = body45.newObject("PartDesign::Boolean", "Boolean035")
boolean36.Type = "Fuse"
boolean36.addObjects([body43])
doc.recompute()

boolean37 = body45.newObject("PartDesign::Boolean", "Boolean036")
boolean37.Type = "Fuse"
boolean37.addObjects([body37])
doc.recompute()

chamfer = body45.newObject("PartDesign::Chamfer", "Chamfer")
chamfer.Base = (boolean37, edges_at(boolean37, [(-46.6, 0, -14), (-46.6, 0, -4)]))
chamfer.Size = 1.2
doc.recompute()

chamfer2 = body45.newObject("PartDesign::Chamfer", "Chamfer001")
chamfer2.Base = (chamfer, edges_at(chamfer, [(-46.6, 0, -8), (-46.6, 0, 0)]))
chamfer2.Size = 1.2
doc.recompute()

boolean38 = body45.newObject("PartDesign::Boolean", "Boolean037")
boolean38.Type = "Cut"
boolean38.addObjects([body34])
doc.recompute()

boolean39 = body45.newObject("PartDesign::Boolean", "Boolean038")
boolean39.Type = "Fuse"
boolean39.addObjects([body33])
doc.recompute()

boolean40 = body45.newObject("PartDesign::Boolean", "Boolean039")
boolean40.Type = "Cut"
boolean40.addObjects([body31])
doc.recompute()

boolean41 = body45.newObject("PartDesign::Boolean", "Boolean040")
boolean41.Type = "Cut"
boolean41.addObjects([body30])
doc.recompute()

boolean42 = body45.newObject("PartDesign::Boolean", "Boolean041")
boolean42.Type = "Cut"
boolean42.addObjects([body29])
doc.recompute()

boolean43 = body45.newObject("PartDesign::Boolean", "Boolean042")
boolean43.Type = "Fuse"
boolean43.addObjects([body28])

doc.recompute()
